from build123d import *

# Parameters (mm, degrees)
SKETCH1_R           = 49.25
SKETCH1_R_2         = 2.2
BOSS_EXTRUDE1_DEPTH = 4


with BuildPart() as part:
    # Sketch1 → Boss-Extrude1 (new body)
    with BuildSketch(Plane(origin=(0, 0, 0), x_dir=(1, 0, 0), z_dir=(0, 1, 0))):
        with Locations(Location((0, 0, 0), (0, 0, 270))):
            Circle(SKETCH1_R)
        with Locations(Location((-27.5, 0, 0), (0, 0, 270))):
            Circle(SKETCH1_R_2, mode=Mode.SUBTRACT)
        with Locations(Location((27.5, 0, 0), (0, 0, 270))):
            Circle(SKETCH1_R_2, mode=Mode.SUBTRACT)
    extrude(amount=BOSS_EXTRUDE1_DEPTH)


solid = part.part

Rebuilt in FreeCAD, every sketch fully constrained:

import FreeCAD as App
import Part
import Sketcher
Q = App.Units.Quantity

doc = App.newDocument("Part")
body = doc.addObject("PartDesign::Body", "Body")

# Sketch on XZ plane
sketch1 = body.newObject("Sketcher::SketchObject", "Sketch")
sketch1.AttachmentSupport = (doc.getObject("XZ_Plane"), [""])
sketch1.MapMode = "FlatFace"
sketch1.addGeometry([
    Part.Circle(App.Vector(0, 0, 0), App.Vector(0, 0, 1), 49.25),
    Part.Circle(App.Vector(-27.5, 0, 0), App.Vector(0, 0, 1), 2.2),
    Part.Circle(App.Vector(27.5, 0, 0), App.Vector(0, 0, 1), 2.2),
], False)
sketch1.addConstraint([
    Sketcher.Constraint("Coincident", 0, 3, -1, 1),
    Sketcher.Constraint("Equal", 1, 2),
    Sketcher.Constraint("Symmetric", 1, 3, 2, 3, -1, 1),
    Sketcher.Constraint("PointOnObject", 1, 3, -1),
    Sketcher.Constraint("Diameter", 0, Q("98.5 mm")),
    Sketcher.Constraint("Diameter", 1, Q("4.4 mm")),
    Sketcher.Constraint("DistanceX", 1, 3, 2, 3, Q("55 mm")),
])
pad1 = body.newObject("PartDesign::Pad", "Pad")
pad1.Profile = sketch1
pad1.Length = 4
pad1.Reversed = True

doc.recompute()
